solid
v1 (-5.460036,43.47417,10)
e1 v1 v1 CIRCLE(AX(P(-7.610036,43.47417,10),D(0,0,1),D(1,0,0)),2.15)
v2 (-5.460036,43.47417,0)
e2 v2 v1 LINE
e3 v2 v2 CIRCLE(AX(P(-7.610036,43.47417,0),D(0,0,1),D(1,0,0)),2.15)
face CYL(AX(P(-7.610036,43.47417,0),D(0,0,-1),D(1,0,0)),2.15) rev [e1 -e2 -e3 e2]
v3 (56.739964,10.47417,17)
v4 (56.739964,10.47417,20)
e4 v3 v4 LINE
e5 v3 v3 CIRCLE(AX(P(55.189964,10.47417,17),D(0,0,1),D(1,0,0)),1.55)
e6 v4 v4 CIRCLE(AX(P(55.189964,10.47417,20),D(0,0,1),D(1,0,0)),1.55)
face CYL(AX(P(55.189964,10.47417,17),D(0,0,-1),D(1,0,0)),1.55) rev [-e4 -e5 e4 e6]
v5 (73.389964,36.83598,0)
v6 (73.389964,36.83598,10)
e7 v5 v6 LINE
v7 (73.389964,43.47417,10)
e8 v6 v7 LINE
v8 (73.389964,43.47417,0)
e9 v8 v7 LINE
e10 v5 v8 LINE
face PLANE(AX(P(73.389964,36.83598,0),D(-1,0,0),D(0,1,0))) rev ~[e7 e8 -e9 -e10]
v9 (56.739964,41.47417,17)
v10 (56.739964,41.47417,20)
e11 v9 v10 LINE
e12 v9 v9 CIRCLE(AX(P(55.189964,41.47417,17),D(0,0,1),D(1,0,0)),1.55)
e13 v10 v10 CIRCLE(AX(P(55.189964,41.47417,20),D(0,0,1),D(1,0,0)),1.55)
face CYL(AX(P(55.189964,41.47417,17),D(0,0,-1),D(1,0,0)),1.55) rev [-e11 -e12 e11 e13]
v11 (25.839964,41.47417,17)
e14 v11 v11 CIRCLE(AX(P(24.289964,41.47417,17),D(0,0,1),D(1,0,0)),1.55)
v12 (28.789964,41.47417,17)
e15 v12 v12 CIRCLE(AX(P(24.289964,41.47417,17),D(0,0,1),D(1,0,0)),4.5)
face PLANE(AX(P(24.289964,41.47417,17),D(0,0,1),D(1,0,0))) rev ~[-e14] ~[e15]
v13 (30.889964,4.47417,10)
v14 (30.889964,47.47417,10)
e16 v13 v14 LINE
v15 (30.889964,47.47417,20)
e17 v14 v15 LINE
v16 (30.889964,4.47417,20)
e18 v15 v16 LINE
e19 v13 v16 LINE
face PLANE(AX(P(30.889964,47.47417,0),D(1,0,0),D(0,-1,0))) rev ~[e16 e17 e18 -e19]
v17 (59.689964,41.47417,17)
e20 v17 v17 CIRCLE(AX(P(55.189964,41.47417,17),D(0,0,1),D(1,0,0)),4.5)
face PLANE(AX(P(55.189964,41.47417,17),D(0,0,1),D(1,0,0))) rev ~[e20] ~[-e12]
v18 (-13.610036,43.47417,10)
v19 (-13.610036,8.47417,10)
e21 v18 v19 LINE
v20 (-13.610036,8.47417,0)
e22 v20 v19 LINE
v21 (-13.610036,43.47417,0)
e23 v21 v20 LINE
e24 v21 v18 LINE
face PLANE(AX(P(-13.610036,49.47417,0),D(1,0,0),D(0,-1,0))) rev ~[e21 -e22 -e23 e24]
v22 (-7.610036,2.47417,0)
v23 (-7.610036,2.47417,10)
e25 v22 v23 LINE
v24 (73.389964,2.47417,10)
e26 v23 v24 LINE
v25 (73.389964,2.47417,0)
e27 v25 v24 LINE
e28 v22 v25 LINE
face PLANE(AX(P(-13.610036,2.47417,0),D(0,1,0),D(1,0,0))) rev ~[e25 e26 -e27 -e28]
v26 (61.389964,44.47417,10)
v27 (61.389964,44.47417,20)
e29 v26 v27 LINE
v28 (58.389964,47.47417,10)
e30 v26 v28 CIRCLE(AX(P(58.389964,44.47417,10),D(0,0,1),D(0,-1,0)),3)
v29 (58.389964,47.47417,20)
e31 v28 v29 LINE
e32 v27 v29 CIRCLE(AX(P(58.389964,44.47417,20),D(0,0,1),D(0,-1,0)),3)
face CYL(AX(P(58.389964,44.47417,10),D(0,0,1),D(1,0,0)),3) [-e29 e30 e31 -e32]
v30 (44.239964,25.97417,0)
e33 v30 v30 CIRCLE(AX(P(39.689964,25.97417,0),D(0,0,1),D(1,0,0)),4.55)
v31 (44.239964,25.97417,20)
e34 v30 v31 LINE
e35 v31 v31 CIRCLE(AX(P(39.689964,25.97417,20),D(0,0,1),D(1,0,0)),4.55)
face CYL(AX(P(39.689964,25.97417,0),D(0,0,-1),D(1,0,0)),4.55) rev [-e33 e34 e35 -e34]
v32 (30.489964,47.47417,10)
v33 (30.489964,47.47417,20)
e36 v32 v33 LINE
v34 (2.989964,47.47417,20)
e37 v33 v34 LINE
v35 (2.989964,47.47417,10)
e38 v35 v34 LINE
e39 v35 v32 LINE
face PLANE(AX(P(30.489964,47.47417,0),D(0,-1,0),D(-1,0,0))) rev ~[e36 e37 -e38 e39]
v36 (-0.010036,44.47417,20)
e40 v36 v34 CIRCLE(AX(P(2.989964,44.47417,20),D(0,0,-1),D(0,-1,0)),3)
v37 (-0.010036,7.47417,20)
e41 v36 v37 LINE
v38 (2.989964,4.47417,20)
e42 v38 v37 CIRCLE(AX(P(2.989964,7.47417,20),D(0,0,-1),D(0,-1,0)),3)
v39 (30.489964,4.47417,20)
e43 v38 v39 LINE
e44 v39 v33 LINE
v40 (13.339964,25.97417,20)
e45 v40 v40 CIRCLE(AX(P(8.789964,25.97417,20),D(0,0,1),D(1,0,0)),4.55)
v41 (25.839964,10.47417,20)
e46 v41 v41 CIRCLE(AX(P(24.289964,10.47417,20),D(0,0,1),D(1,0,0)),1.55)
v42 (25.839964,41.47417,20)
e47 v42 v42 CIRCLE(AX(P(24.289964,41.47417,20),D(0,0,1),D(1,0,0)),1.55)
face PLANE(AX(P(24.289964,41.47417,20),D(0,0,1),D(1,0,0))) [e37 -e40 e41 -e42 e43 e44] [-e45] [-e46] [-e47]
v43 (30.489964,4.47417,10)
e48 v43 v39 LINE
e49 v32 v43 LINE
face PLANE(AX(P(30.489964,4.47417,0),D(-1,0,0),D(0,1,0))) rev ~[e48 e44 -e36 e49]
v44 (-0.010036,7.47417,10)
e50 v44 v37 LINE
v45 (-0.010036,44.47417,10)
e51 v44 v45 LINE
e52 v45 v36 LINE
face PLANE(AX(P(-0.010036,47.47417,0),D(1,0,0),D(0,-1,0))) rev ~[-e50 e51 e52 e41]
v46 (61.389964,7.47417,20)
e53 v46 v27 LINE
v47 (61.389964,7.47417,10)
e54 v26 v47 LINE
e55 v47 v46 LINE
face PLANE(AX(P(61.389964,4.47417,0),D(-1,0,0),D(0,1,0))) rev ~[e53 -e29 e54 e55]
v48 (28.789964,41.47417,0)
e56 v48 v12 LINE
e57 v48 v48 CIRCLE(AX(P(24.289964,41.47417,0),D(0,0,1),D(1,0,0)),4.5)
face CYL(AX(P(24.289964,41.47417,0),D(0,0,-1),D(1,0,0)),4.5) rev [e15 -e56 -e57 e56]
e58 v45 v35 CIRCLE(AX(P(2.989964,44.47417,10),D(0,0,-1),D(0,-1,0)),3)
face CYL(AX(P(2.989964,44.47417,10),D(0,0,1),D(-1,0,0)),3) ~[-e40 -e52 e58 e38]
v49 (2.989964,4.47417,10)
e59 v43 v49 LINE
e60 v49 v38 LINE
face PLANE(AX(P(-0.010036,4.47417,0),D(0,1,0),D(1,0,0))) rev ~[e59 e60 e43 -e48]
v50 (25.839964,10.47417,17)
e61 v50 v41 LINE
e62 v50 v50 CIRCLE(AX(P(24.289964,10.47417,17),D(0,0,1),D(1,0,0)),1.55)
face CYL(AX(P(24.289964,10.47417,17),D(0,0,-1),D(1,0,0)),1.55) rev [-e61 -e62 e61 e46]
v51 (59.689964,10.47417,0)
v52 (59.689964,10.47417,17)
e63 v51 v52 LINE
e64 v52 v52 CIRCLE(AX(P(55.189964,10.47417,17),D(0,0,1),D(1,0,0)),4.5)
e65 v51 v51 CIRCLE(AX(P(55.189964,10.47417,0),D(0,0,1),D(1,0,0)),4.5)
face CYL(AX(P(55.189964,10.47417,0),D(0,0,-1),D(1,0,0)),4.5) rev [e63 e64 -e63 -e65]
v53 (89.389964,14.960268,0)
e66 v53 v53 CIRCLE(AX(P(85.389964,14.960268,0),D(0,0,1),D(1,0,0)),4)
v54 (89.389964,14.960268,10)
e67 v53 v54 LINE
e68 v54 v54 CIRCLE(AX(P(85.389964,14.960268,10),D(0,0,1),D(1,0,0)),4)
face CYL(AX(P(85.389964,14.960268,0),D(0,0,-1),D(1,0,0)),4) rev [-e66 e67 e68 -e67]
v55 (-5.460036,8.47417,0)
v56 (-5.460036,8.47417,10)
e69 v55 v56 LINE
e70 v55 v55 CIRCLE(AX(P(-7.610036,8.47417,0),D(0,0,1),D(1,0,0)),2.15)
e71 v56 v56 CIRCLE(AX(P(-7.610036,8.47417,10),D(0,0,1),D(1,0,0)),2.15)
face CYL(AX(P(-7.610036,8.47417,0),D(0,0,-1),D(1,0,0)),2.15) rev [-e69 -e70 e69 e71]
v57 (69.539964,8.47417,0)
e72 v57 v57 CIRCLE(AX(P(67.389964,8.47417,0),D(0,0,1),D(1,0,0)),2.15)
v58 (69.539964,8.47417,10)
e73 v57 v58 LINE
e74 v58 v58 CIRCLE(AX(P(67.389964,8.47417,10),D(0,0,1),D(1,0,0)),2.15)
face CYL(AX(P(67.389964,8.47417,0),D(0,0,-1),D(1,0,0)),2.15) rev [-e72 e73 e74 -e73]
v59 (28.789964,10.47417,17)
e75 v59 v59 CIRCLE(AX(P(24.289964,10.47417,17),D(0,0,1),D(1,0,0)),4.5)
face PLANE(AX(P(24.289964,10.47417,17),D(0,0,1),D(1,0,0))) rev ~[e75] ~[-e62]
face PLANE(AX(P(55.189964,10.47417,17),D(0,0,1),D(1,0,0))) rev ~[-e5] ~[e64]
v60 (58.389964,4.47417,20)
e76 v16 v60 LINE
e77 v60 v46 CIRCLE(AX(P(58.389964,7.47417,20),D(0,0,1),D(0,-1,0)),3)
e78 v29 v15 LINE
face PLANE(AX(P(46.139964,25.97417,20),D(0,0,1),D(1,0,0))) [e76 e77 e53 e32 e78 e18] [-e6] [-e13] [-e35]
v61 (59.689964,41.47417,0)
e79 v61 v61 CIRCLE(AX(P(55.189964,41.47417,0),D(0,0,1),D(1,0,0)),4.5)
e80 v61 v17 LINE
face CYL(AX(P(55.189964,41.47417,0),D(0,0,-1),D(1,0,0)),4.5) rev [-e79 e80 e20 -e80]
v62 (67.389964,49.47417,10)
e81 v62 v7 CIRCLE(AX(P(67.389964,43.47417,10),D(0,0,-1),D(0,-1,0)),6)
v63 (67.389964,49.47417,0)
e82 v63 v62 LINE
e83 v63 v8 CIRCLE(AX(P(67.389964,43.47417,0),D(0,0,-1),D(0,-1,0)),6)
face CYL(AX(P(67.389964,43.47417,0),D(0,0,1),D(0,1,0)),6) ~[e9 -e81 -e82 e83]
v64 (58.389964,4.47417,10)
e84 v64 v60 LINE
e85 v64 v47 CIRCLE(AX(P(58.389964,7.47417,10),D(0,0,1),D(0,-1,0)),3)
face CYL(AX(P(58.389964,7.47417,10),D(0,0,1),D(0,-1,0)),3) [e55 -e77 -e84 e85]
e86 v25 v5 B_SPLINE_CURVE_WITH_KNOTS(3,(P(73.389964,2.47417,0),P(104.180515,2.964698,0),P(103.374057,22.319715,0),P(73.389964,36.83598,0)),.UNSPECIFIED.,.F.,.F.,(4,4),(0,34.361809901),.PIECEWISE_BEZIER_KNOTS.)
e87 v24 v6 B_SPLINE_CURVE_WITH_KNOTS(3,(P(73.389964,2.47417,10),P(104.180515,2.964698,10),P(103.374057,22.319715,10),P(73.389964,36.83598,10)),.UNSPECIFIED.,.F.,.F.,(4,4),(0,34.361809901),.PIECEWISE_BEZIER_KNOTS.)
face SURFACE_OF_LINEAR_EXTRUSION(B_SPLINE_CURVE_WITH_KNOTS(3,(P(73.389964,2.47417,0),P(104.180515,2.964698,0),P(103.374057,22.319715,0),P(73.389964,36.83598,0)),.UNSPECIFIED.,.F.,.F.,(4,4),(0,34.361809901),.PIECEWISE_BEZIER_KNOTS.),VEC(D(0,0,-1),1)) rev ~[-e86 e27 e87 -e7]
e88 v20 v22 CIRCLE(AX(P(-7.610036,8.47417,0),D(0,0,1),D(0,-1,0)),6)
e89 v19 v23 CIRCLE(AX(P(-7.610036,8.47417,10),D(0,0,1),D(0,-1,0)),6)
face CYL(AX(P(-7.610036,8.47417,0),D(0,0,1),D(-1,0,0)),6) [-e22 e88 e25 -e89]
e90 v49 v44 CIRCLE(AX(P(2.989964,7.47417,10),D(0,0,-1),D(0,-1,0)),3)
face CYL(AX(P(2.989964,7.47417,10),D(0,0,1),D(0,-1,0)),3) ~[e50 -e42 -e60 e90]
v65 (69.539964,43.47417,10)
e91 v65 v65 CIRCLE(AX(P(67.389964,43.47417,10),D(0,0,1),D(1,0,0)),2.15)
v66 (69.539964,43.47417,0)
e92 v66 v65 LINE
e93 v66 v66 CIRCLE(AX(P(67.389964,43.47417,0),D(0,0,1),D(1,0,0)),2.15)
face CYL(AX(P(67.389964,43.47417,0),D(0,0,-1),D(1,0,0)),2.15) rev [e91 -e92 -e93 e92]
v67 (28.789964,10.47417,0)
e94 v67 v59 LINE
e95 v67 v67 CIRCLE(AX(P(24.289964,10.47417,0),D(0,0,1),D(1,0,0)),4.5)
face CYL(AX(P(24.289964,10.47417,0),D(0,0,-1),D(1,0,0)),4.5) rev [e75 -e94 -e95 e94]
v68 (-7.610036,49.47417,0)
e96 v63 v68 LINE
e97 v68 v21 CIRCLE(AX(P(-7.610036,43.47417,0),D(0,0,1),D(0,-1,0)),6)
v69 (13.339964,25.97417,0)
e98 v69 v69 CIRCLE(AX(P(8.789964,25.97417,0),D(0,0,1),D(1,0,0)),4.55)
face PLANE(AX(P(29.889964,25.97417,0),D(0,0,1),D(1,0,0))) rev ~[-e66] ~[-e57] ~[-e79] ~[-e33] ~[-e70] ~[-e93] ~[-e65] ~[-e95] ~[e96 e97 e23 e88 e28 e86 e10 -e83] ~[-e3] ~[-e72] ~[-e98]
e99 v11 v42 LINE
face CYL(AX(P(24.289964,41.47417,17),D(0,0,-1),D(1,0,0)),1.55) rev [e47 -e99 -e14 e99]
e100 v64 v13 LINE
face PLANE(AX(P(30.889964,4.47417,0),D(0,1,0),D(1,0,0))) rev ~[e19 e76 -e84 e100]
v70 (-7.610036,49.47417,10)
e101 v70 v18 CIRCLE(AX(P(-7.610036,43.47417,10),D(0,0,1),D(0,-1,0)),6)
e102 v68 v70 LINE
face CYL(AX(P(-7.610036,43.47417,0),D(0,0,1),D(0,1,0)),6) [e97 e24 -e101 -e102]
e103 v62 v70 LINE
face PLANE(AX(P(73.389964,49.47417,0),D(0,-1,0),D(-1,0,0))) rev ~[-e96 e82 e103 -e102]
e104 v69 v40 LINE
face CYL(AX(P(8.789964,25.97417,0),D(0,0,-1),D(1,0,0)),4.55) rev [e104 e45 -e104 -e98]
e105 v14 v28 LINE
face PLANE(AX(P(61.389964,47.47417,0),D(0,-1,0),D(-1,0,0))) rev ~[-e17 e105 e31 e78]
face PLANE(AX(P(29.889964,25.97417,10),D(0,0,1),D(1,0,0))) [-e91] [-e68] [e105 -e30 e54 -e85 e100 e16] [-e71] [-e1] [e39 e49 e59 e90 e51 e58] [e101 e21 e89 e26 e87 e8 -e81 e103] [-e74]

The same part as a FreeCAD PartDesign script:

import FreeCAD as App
import Part
import Sketcher

V = App.Vector


def edges_at(feature, points):
    """Names of the edges that pass closest to the given points."""
    edges = feature.Shape.Edges
    near = lambda p: min(range(len(edges)), key=lambda i: edges[i].distToShape(Part.Vertex(*p))[0])
    return sorted({f"Edge{near(p) + 1}" for p in points})


def add_polygon(sketch, points):
    """Adds a closed chain of lines whose ends are joined by coincident constraints."""
    first, n = sketch.GeometryCount, len(points)
    for a, b in zip(points, points[1:] + points[:1]):
        sketch.addGeometry(Part.LineSegment(App.Vector(*a, 0), App.Vector(*b, 0)), False)
    for i in range(n):
        sketch.addConstraint(Sketcher.Constraint("Coincident", first + i, 2, first + (i + 1) % n, 1))

doc = App.newDocument("Part")
body = doc.addObject("PartDesign::Body", "Body")

# Sketch on XY plane
sketch1 = body.newObject("Sketcher::SketchObject", "Sketch")
sketch1.AttachmentSupport = (doc.getObject("XY_Plane"), [""])
sketch1.MapMode = "FlatFace"
sketch1.addGeometry(Part.LineSegment(V(73.389964, 49.47417, 0), V(-13.610036, 49.47417, 0)), False)  # 0
sketch1.addGeometry(Part.LineSegment(V(-13.610036, 49.47417, 0), V(-13.610036, 2.47417, 0)), False)  # 1
sketch1.addGeometry(Part.LineSegment(V(-13.610036, 2.47417, 0), V(73.389964, 2.47417, 0)), False)  # 2
sketch1.addGeometry(Part.BSplineCurve([V(73.389964, 2.47417, 0), V(104.180515, 2.964698, 0), V(103.374057, 22.319715, 0), V(73.389964, 36.83598, 0)], [4, 4], [0, 34.361809901], False, 3, [1, 1, 1, 1], False), False)  # 3
sketch1.addGeometry(Part.LineSegment(V(73.389964, 36.83598, 0), V(73.389964, 49.47417, 0)), False)  # 4
sketch1.addGeometry(Part.Circle(V(-7.610036, 8.47417, 0), V(0, 0, 1), 2.15), False)  # 5
sketch1.addGeometry(Part.Circle(V(67.389964, 8.47417, 0), V(0, 0, 1), 2.15), False)  # 6
sketch1.addGeometry(Part.Circle(V(85.389964, 14.960268, 0), V(0, 0, 1), 4), False)  # 7
add_polygon(sketch1, [(30.489964, 4.47417), (-0.010036, 4.47417), (-0.010036, 47.47417), (30.489964, 47.47417)])  # lines 8-11
sketch1.addGeometry(Part.Circle(V(-7.610036, 43.47417, 0), V(0, 0, 1), 2.15), False)  # 12
add_polygon(sketch1, [(61.389964, 4.47417), (30.889964, 4.47417), (30.889964, 47.47417), (61.389964, 47.47417)])  # lines 13-16
sketch1.addGeometry(Part.Circle(V(67.389964, 43.47417, 0), V(0, 0, 1), 2.15), False)  # 17
sketch1.addConstraint(Sketcher.Constraint("Block", 3))
sketch1.addConstraint(Sketcher.Constraint("Coincident", 0, 2, 1, 1))
sketch1.addConstraint(Sketcher.Constraint("Coincident", 1, 2, 2, 1))
sketch1.addConstraint(Sketcher.Constraint("Coincident", 2, 2, 3, 1))
sketch1.addConstraint(Sketcher.Constraint("Coincident", 3, 2, 4, 1))
sketch1.addConstraint(Sketcher.Constraint("Coincident", 4, 2, 0, 1))
sketch1.addConstraint(Sketcher.Constraint("Horizontal", 0))
sketch1.addConstraint(Sketcher.Constraint("Vertical", 1))
sketch1.addConstraint(Sketcher.Constraint("Horizontal", 2))
sketch1.addConstraint(Sketcher.Constraint("Vertical", 4))
sketch1.addConstraint(Sketcher.Constraint("Horizontal", 8))
sketch1.addConstraint(Sketcher.Constraint("Vertical", 9))
sketch1.addConstraint(Sketcher.Constraint("Horizontal", 10))
sketch1.addConstraint(Sketcher.Constraint("Vertical", 11))
sketch1.addConstraint(Sketcher.Constraint("Horizontal", 13))
sketch1.addConstraint(Sketcher.Constraint("Vertical", 14))
sketch1.addConstraint(Sketcher.Constraint("Horizontal", 15))
sketch1.addConstraint(Sketcher.Constraint("Vertical", 16))
sketch1.addConstraint(Sketcher.Constraint("Equal", 5, 6))
sketch1.addConstraint(Sketcher.Constraint("Equal", 6, 12))
sketch1.addConstraint(Sketcher.Constraint("Equal", 12, 17))
sketch1.addConstraint(Sketcher.Constraint("Horizontal", 5, 3, 6, 3))
sketch1.addConstraint(Sketcher.Constraint("Horizontal", 12, 3, 17, 3))
sketch1.addConstraint(Sketcher.Constraint("Horizontal", 11, 2, 13, 2))
sketch1.addConstraint(Sketcher.Constraint("Horizontal", 10, 2, 14, 2))
sketch1.addConstraint(Sketcher.Constraint("Vertical", 5, 3, 12, 3))
sketch1.addConstraint(Sketcher.Constraint("Vertical", 6, 3, 17, 3))
sketch1.addConstraint(Sketcher.Constraint("Equal", 10, 13))
sketch1.addConstraint(Sketcher.Constraint("Diameter", 7, 8.0))
sketch1.addConstraint(Sketcher.Constraint("Diameter", 5, 4.3))
sketch1.addConstraint(Sketcher.Constraint("DistanceX", 0, 2, 0, 1, 87.0))
sketch1.addConstraint(Sketcher.Constraint("DistanceY", 1, 2, 1, 1, 47.0))
sketch1.addConstraint(Sketcher.Constraint("DistanceY", 9, 1, 9, 2, 43.0))
sketch1.addConstraint(Sketcher.Constraint("DistanceX", 8, 2, 8, 1, 30.5))
sketch1.addConstraint(Sketcher.Constraint("DistanceX", 5, 3, 6, 3, 75.0))
sketch1.addConstraint(Sketcher.Constraint("DistanceX", 6, 3, 7, 3, 18.0))
sketch1.addConstraint(Sketcher.Constraint("DistanceY", 5, 3, 12, 3, 35.0))
sketch1.addConstraint(Sketcher.Constraint("DistanceX", 0, 2, 12, 3, 6.0))
sketch1.addConstraint(Sketcher.Constraint("DistanceY", 12, 3, 0, 2, 6.0))
sketch1.addConstraint(Sketcher.Constraint("DistanceY", 8, 2, 5, 3, 4.0))
sketch1.addConstraint(Sketcher.Constraint("DistanceX", 15, 2, 17, 3, 6.0))
sketch1.addConstraint(Sketcher.Constraint("DistanceX", 5, 3, 8, 2, 7.6))
sketch1.addConstraint(Sketcher.Constraint("DistanceY", -1, 1, 7, 3, 14.960268))
pad1 = body.newObject("PartDesign::Pad", "Pad")
pad1.Profile = sketch1
pad1.Length = 10

# Sketch on XY plane
sketch2 = body.newObject("Sketcher::SketchObject", "Sketch001")
sketch2.AttachmentSupport = (doc.getObject("XY_Plane"), [""])
sketch2.MapMode = "FlatFace"
add_polygon(sketch2, [(30.5, 47.5), (0, 47.5), (0, 4.5), (30.5, 4.5)])  # lines 0-3
sketch2.addGeometry(Part.Circle(V(24.3, 10.5, 0), V(0, 0, 1), 4.5), False)  # 4
sketch2.addGeometry(Part.Circle(V(8.8, 26, 0), V(0, 0, 1), 4.5), False)  # 5
sketch2.addGeometry(Part.Circle(V(24.3, 41.5, 0), V(0, 0, 1), 4.5), False)  # 6
add_polygon(sketch2, [(61.4, 47.5), (30.9, 47.5), (30.9, 4.5), (61.4, 4.5)])  # lines 7-10
sketch2.addGeometry(Part.Circle(V(55.2, 10.5, 0), V(0, 0, 1), 4.5), False)  # 11
sketch2.addGeometry(Part.Circle(V(39.7, 26, 0), V(0, 0, 1), 4.5), False)  # 12
sketch2.addGeometry(Part.Circle(V(55.2, 41.5, 0), V(0, 0, 1), 4.5), False)  # 13
sketch2.addConstraint(Sketcher.Constraint("Horizontal", 0))
sketch2.addConstraint(Sketcher.Constraint("Vertical", 1))
sketch2.addConstraint(Sketcher.Constraint("Horizontal", 2))
sketch2.addConstraint(Sketcher.Constraint("Vertical", 3))
sketch2.addConstraint(Sketcher.Constraint("Horizontal", 7))
sketch2.addConstraint(Sketcher.Constraint("Vertical", 8))
sketch2.addConstraint(Sketcher.Constraint("Horizontal", 9))
sketch2.addConstraint(Sketcher.Constraint("Vertical", 10))
sketch2.addConstraint(Sketcher.Constraint("Equal", 4, 6))
sketch2.addConstraint(Sketcher.Constraint("Equal", 6, 11))
sketch2.addConstraint(Sketcher.Constraint("Equal", 5, 12))
sketch2.addConstraint(Sketcher.Constraint("Equal", 11, 13))
sketch2.addConstraint(Sketcher.Constraint("Horizontal", 4, 3, 11, 3))
sketch2.addConstraint(Sketcher.Constraint("Horizontal", 5, 3, 12, 3))
sketch2.addConstraint(Sketcher.Constraint("Horizontal", 6, 3, 13, 3))
sketch2.addConstraint(Sketcher.Constraint("Horizontal", 3, 2, 7, 2))
sketch2.addConstraint(Sketcher.Constraint("Horizontal", 2, 2, 8, 2))
sketch2.addConstraint(Sketcher.Constraint("Vertical", 4, 3, 6, 3))
sketch2.addConstraint(Sketcher.Constraint("Vertical", 11, 3, 13, 3))
sketch2.addConstraint(Sketcher.Constraint("Equal", 2, 7))
sketch2.addConstraint(Sketcher.Constraint("Diameter", 4, 9.0))
sketch2.addConstraint(Sketcher.Constraint("Diameter", 5, 9.1))
sketch2.addConstraint(Sketcher.Constraint("DistanceY", 1, 2, 1, 1, 43.0))
sketch2.addConstraint(Sketcher.Constraint("DistanceX", 0, 2, 0, 1, 30.5))
sketch2.addConstraint(Sketcher.Constraint("DistanceY", 4, 3, 6, 3, 31.0))
sketch2.addConstraint(Sketcher.Constraint("DistanceY", 6, 3, 0, 2, 6.0))
sketch2.addConstraint(Sketcher.Constraint("DistanceX", 5, 3, 4, 3, 15.5))
sketch2.addConstraint(Sketcher.Constraint("DistanceY", 4, 3, 5, 3, 15.5))
sketch2.addConstraint(Sketcher.Constraint("DistanceX", 4, 3, 11, 3, 30.9))
sketch2.addConstraint(Sketcher.Constraint("DistanceX", 4, 3, 12, 3, 15.4))
sketch2.addConstraint(Sketcher.Constraint("DistanceX", 0, 2, 5, 3, 8.8))
sketch2.addConstraint(Sketcher.Constraint("DistanceX", 3, 2, 7, 2, 0.4))
sketch2.addConstraint(Sketcher.Constraint("DistanceY", -1, 1, 4, 3, 10.47417))
sketch2.addConstraint(Sketcher.Constraint("DistanceX", -1, 1, 4, 3, 24.289964))
pad2 = body.newObject("PartDesign::Pad", "Pad001")
pad2.Profile = sketch2
pad2.Length = 20

# Sketch on XY plane
sketch3 = body.newObject("Sketcher::SketchObject", "Sketch002")
sketch3.AttachmentSupport = (doc.getObject("XY_Plane"), [""])
sketch3.MapMode = "FlatFace"
sketch3.AttachmentOffset = App.Placement(V(0, 0, 17), App.Rotation())
sketch3.addGeometry(Part.Circle(V(24.3, 41.5, 0), V(0, 0, 1), 4.5), False)
sketch3.addGeometry(Part.Circle(V(24.3, 41.5, 0), V(0, 0, 1), 1.6), False)
sketch3.addGeometry(Part.Circle(V(55.2, 41.5, 0), V(0, 0, 1), 4.5), False)
sketch3.addGeometry(Part.Circle(V(55.2, 41.5, 0), V(0, 0, 1), 1.6), False)
sketch3.addGeometry(Part.Circle(V(55.2, 10.5, 0), V(0, 0, 1), 4.5), False)
sketch3.addGeometry(Part.Circle(V(55.2, 10.5, 0), V(0, 0, 1), 1.6), False)
sketch3.addGeometry(Part.Circle(V(24.3, 10.5, 0), V(0, 0, 1), 4.5), False)
sketch3.addGeometry(Part.Circle(V(24.3, 10.5, 0), V(0, 0, 1), 1.6), False)
sketch3.addConstraint(Sketcher.Constraint("Coincident", 1, 3, 0, 3))
sketch3.addConstraint(Sketcher.Constraint("Coincident", 3, 3, 2, 3))
sketch3.addConstraint(Sketcher.Constraint("Coincident", 5, 3, 4, 3))
sketch3.addConstraint(Sketcher.Constraint("Coincident", 7, 3, 6, 3))
sketch3.addConstraint(Sketcher.Constraint("Equal", 0, 2))
sketch3.addConstraint(Sketcher.Constraint("Equal", 1, 3))
sketch3.addConstraint(Sketcher.Constraint("Equal", 2, 4))
sketch3.addConstraint(Sketcher.Constraint("Equal", 3, 5))
sketch3.addConstraint(Sketcher.Constraint("Equal", 4, 6))
sketch3.addConstraint(Sketcher.Constraint("Equal", 5, 7))
sketch3.addConstraint(Sketcher.Constraint("Horizontal", 1, 3, 2, 3))
sketch3.addConstraint(Sketcher.Constraint("Horizontal", 5, 3, 6, 3))
sketch3.addConstraint(Sketcher.Constraint("Vertical", 3, 3, 4, 3))
sketch3.addConstraint(Sketcher.Constraint("Vertical", 1, 3, 6, 3))
sketch3.addConstraint(Sketcher.Constraint("Diameter", 0, 9.0))
sketch3.addConstraint(Sketcher.Constraint("Diameter", 1, 3.1))
sketch3.addConstraint(Sketcher.Constraint("DistanceY", 4, 3, 2, 3, 31.0))
sketch3.addConstraint(Sketcher.Constraint("DistanceX", 0, 3, 2, 3, 30.9))
sketch3.addConstraint(Sketcher.Constraint("DistanceY", -1, 1, 0, 3, 41.47417))
sketch3.addConstraint(Sketcher.Constraint("DistanceX", -1, 1, 0, 3, 24.289964))
pad3 = body.newObject("PartDesign::Pad", "Pad002")
pad3.Profile = sketch3
pad3.Length = 3
doc.recompute()

fillet = body.newObject("PartDesign::Fillet", "Fillet")
fillet.Base = (pad3, edges_at(pad3, [
    (73.39, 2.474, 5),
    (73.39, 49.474, 5),
    (-13.61, 49.474, 5),
    (-13.61, 2.474, 5),
]))
fillet.Radius = 6
doc.recompute()

fillet2 = body.newObject("PartDesign::Fillet", "Fillet001")
fillet2.Base = (fillet, edges_at(fillet, [
    (-0.01, 4.474, 15),
    (61.39, 4.474, 15),
    (61.39, 47.474, 15),
    (-0.01, 47.474, 15),
]))
fillet2.Radius = 3

doc.recompute()
